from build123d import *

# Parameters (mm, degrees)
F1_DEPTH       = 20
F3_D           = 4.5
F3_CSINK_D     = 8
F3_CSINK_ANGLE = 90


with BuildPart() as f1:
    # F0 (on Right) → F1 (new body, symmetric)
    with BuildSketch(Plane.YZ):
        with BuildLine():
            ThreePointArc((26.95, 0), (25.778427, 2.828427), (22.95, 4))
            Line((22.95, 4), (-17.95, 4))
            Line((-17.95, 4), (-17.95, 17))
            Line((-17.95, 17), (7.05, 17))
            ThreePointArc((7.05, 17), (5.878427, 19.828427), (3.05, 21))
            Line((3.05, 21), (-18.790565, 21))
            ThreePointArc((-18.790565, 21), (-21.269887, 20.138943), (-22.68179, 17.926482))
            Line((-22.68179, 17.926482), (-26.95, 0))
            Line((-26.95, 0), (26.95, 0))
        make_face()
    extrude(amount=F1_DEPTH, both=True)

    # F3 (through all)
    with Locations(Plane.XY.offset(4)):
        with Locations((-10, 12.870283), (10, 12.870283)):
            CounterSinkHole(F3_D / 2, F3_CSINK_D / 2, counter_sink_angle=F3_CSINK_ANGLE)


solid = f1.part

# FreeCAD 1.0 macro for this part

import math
import FreeCAD as App
import Part
import Sketcher
from FreeCAD import Vector
Q = App.Units.Quantity

doc = App.newDocument("Part")
body = doc.addObject("PartDesign::Body", "Body")

sketch1 = doc.addObject("Sketcher::SketchObject", "Sketch")
body.addObject(sketch1)
sketch1.AttachmentSupport = (doc.YZ_Plane, [""])
sketch1.MapMode = "FlatFace"
sketch1.addGeometry([
    Part.ArcOfCircle(Part.Circle(Vector(22.9, 0, 0), Vector(0, 0, 1), 4), math.radians(0), math.radians(90)),
    Part.LineSegment(Vector(22.9, 4, 0), Vector(-17.9, 4, 0)),
    Part.LineSegment(Vector(-17.9, 4, 0), Vector(-17.9, 17, 0)),
    Part.LineSegment(Vector(-17.9, 17, 0), Vector(7, 17, 0)),
    Part.ArcOfCircle(Part.Circle(Vector(3, 17, 0), Vector(0, 0, 1), 4), math.radians(0), math.radians(90)),
    Part.LineSegment(Vector(3, 21, 0), Vector(-18.8, 21, 0)),
    Part.ArcOfCircle(Part.Circle(Vector(-18.8, 17, 0), Vector(0, 0, 1), 4), math.radians(90), math.radians(167)),
    Part.LineSegment(Vector(-22.7, 17.9, 0), Vector(-26.9, 0, 0)),
    Part.LineSegment(Vector(-26.9, 0, 0), Vector(26.9, 0, 0)),
], False)
sketch1.addConstraint([
    Sketcher.Constraint("Tangent", 0, 2, 1, 1),
    Sketcher.Constraint("Coincident", 1, 2, 2, 1),
    Sketcher.Constraint("Coincident", 2, 2, 3, 1),
    Sketcher.Constraint("Coincident", 3, 2, 4, 1),
    Sketcher.Constraint("Tangent", 4, 2, 5, 1),
    Sketcher.Constraint("Tangent", 5, 2, 6, 1),
    Sketcher.Constraint("Tangent", 6, 2, 7, 1),
    Sketcher.Constraint("Coincident", 7, 2, 8, 1),
    Sketcher.Constraint("Coincident", 8, 2, 0, 1),
    Sketcher.Constraint("Horizontal", 1),
    Sketcher.Constraint("Vertical", 2),
    Sketcher.Constraint("Horizontal", 3),
    Sketcher.Constraint("Horizontal", 5),
    Sketcher.Constraint("Horizontal", 8),
    Sketcher.Constraint("Equal", 0, 4),
    Sketcher.Constraint("Equal", 4, 6),
    Sketcher.Constraint("Symmetric", 7, 2, 8, 2, -1, 1),
    Sketcher.Constraint("PointOnObject", 0, 3, -1),
    Sketcher.Constraint("Horizontal", 6, 3, 2, 2),
    Sketcher.Constraint("Radius", 0, Q("4 mm")),
    Sketcher.Constraint("DistanceX", 3, 1, 3, 2, Q("25 mm")),
    Sketcher.Constraint("DistanceY", 2, 1, 2, 2, Q("13 mm")),
    Sketcher.Constraint("DistanceX", 1, 2, 1, 1, Q("40.9 mm")),
    Sketcher.Constraint("DistanceX", 8, 1, 8, 2, Q("53.9 mm")),
    Sketcher.Constraint("Distance", 7, Q("18.427598 mm")),
])
pad1 = doc.addObject("PartDesign::Pad", "Pad")
body.addObject(pad1)
pad1.Profile = sketch1
pad1.Length = 40
pad1.Midplane = True

sketch2 = doc.addObject("Sketcher::SketchObject", "Sketch001")
body.addObject(sketch2)
sketch2.AttachmentSupport = (doc.XY_Plane, [""])
sketch2.MapMode = "FlatFace"
sketch2.AttachmentOffset = App.Placement(Vector(0, 0, 4), App.Rotation())
sketch2.addGeometry([
    Part.Circle(Vector(-10, 12.9, 0), Vector(0, 0, 1), 2.2),
    Part.Circle(Vector(10, 12.9, 0), Vector(0, 0, 1), 2.2),
], False)
sketch2.addConstraint([
    Sketcher.Constraint("Equal", 0, 1),
    Sketcher.Constraint("Symmetric", 0, 3, 1, 3, -2),
    Sketcher.Constraint("Diameter", 0, Q("4.5 mm")),
    Sketcher.Constraint("DistanceX", 0, 3, -1, 1, Q("10 mm")),
    Sketcher.Constraint("DistanceY", -1, 1, 0, 3, Q("12.870283 mm")),
])
doc.recompute()
hole = doc.addObject("PartDesign::Hole", "Hole")
body.addObject(hole)
hole.Profile = sketch2
hole.ThreadType = "None"
hole.Diameter = 4.5
hole.DepthType = "ThroughAll"
hole.HoleCutType = "Countersink"
hole.HoleCutDiameter = 8
hole.HoleCutCountersinkAngle = 90

doc.recompute()
